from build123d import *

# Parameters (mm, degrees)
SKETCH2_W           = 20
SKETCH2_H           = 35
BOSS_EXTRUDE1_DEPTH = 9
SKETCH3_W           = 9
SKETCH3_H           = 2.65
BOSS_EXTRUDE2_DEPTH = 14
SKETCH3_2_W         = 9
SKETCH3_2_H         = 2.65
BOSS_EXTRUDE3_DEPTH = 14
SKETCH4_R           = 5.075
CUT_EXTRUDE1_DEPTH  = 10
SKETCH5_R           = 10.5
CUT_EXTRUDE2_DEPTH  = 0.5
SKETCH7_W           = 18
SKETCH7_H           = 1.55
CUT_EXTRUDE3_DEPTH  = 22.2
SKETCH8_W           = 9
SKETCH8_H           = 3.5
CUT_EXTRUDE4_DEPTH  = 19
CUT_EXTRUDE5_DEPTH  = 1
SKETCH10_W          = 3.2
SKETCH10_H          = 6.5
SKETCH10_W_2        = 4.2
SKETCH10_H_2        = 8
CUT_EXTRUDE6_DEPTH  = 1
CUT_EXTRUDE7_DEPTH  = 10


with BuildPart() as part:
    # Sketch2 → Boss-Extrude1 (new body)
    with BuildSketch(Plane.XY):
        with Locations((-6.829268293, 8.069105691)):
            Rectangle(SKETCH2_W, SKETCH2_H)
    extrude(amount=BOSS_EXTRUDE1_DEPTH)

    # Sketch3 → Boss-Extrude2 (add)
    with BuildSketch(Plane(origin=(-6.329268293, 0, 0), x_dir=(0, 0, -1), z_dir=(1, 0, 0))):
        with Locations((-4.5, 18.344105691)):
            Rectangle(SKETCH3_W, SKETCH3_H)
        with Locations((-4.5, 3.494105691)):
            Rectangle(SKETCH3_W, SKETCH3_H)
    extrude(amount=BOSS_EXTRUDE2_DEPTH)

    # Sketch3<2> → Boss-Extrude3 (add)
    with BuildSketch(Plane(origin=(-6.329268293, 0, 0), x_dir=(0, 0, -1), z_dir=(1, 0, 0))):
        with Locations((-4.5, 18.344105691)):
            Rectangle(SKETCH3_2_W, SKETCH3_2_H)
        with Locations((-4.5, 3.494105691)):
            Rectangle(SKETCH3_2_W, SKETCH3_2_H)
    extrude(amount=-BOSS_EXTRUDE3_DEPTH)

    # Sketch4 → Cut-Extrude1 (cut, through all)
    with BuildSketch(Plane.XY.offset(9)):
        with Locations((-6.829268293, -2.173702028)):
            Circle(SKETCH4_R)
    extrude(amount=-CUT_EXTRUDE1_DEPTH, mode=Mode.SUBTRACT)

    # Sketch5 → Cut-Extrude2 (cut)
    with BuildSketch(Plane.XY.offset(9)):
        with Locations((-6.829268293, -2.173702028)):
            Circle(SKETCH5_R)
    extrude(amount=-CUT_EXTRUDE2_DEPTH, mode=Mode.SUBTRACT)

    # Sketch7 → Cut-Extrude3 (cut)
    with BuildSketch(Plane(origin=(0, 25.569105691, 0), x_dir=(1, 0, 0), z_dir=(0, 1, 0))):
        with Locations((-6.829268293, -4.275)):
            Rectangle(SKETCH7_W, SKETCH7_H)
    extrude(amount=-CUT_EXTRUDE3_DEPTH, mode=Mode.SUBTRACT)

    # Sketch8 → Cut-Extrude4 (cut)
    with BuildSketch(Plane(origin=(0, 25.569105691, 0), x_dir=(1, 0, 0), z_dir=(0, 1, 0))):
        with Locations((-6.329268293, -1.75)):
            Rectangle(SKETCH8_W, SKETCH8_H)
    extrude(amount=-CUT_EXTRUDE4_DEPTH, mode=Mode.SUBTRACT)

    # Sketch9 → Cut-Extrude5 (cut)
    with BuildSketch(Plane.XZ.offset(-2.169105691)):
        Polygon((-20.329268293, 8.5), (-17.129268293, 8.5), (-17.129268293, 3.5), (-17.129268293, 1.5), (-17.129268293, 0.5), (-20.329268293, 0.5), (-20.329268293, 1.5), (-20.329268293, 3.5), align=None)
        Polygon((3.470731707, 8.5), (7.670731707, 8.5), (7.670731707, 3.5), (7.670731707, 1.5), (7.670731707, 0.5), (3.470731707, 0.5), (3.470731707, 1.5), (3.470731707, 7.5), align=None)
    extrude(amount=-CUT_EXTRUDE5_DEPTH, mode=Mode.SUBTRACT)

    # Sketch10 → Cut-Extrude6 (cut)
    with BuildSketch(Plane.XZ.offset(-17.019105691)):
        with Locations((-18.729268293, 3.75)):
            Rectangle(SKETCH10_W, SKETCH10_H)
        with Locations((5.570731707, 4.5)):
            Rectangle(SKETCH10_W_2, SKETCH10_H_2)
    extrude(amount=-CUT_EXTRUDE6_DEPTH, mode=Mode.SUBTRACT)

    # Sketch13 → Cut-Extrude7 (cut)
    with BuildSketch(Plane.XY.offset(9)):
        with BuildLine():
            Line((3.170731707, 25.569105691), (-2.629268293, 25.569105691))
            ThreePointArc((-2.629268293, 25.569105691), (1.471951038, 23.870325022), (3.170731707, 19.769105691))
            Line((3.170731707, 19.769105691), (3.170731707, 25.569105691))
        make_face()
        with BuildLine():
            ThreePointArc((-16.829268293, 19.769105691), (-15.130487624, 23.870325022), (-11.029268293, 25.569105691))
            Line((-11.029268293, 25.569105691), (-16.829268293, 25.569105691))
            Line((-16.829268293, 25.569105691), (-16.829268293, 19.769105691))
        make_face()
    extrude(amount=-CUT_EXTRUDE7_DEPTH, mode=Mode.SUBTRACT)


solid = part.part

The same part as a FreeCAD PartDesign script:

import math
import FreeCAD as App
import Part
import Sketcher

doc = App.newDocument("Part")
body = doc.addObject("PartDesign::Body", "Body")

# Sketch on XY plane
sketch1 = body.newObject("Sketcher::SketchObject", "Sketch")
sketch1.AttachmentSupport = (doc.getObject("XY_Plane"), [""])
sketch1.MapMode = "FlatFace"
sketch1.addGeometry(Part.LineSegment(App.Vector(-17, 26, 0), App.Vector(-17, -9, 0)), False)
sketch1.addGeometry(Part.LineSegment(App.Vector(-17, -9, 0), App.Vector(3, -9, 0)), False)
sketch1.addGeometry(Part.LineSegment(App.Vector(3, -9, 0), App.Vector(3, 26, 0)), False)
sketch1.addGeometry(Part.LineSegment(App.Vector(3, 26, 0), App.Vector(-17, 26, 0)), False)
sketch1.addConstraint(Sketcher.Constraint("Coincident", 0, 2, 1, 1))
sketch1.addConstraint(Sketcher.Constraint("Coincident", 1, 2, 2, 1))
sketch1.addConstraint(Sketcher.Constraint("Coincident", 2, 2, 3, 1))
sketch1.addConstraint(Sketcher.Constraint("Coincident", 3, 2, 0, 1))
sketch1.addConstraint(Sketcher.Constraint("Vertical", 0))
sketch1.addConstraint(Sketcher.Constraint("Horizontal", 1))
sketch1.addConstraint(Sketcher.Constraint("Vertical", 2))
sketch1.addConstraint(Sketcher.Constraint("Horizontal", 3))
sketch1.addConstraint(Sketcher.Constraint("DistanceX", 1, 1, 1, 2, 20.0))
sketch1.addConstraint(Sketcher.Constraint("DistanceY", 0, 2, 0, 1, 35.0))
sketch1.addConstraint(Sketcher.Constraint("DistanceX", 0, 2, -1, 1, 16.829268))
sketch1.addConstraint(Sketcher.Constraint("DistanceY", 0, 2, -1, 1, 9.430894))
pad1 = body.newObject("PartDesign::Pad", "Pad")
pad1.Profile = sketch1
pad1.Length = 9

# Sketch on YZ plane
sketch2 = body.newObject("Sketcher::SketchObject", "Sketch001")
sketch2.AttachmentSupport = (doc.getObject("YZ_Plane"), [""])
sketch2.MapMode = "FlatFace"
sketch2.AttachmentOffset = App.Placement(App.Vector(0, 0, -6.329268), App.Rotation())
sketch2.addGeometry(Part.LineSegment(App.Vector(19.7, 9, 0), App.Vector(17, 9, 0)), False)
sketch2.addGeometry(Part.LineSegment(App.Vector(17, 9, 0), App.Vector(17, 0, 0)), False)
sketch2.addGeometry(Part.LineSegment(App.Vector(17, 0, 0), App.Vector(19.7, 0, 0)), False)
sketch2.addGeometry(Part.LineSegment(App.Vector(19.7, 0, 0), App.Vector(19.7, 9, 0)), False)
sketch2.addGeometry(Part.LineSegment(App.Vector(4.8, 9, 0), App.Vector(2.2, 9, 0)), False)
sketch2.addGeometry(Part.LineSegment(App.Vector(2.2, 9, 0), App.Vector(2.2, 0, 0)), False)
sketch2.addGeometry(Part.LineSegment(App.Vector(2.2, 0, 0), App.Vector(4.8, 0, 0)), False)
sketch2.addGeometry(Part.LineSegment(App.Vector(4.8, 0, 0), App.Vector(4.8, 9, 0)), False)
sketch2.addConstraint(Sketcher.Constraint("Coincident", 0, 2, 1, 1))
sketch2.addConstraint(Sketcher.Constraint("Coincident", 1, 2, 2, 1))
sketch2.addConstraint(Sketcher.Constraint("Coincident", 2, 2, 3, 1))
sketch2.addConstraint(Sketcher.Constraint("Coincident", 3, 2, 0, 1))
sketch2.addConstraint(Sketcher.Constraint("Coincident", 4, 2, 5, 1))
sketch2.addConstraint(Sketcher.Constraint("Coincident", 5, 2, 6, 1))
sketch2.addConstraint(Sketcher.Constraint("Coincident", 6, 2, 7, 1))
sketch2.addConstraint(Sketcher.Constraint("Coincident", 7, 2, 4, 1))
sketch2.addConstraint(Sketcher.Constraint("Horizontal", 0))
sketch2.addConstraint(Sketcher.Constraint("Vertical", 1))
sketch2.addConstraint(Sketcher.Constraint("Horizontal", 2))
sketch2.addConstraint(Sketcher.Constraint("Vertical", 3))
sketch2.addConstraint(Sketcher.Constraint("Horizontal", 4))
sketch2.addConstraint(Sketcher.Constraint("Vertical", 5))
sketch2.addConstraint(Sketcher.Constraint("Horizontal", 6))
sketch2.addConstraint(Sketcher.Constraint("Vertical", 7))
sketch2.addConstraint(Sketcher.Constraint("PointOnObject", 1, 2, -1))
sketch2.addConstraint(Sketcher.Constraint("PointOnObject", 5, 2, -1))
sketch2.addConstraint(Sketcher.Constraint("Horizontal", 3, 2, 4, 2))
sketch2.addConstraint(Sketcher.Constraint("Equal", 2, 4))
sketch2.addConstraint(Sketcher.Constraint("DistanceY", 1, 2, 1, 1, 9.0))
sketch2.addConstraint(Sketcher.Constraint("DistanceX", 0, 2, 0, 1, 2.65))
sketch2.addConstraint(Sketcher.Constraint("DistanceX", 4, 2, 3, 2, 17.5))
sketch2.addConstraint(Sketcher.Constraint("DistanceX", -1, 1, 0, 2, 17.019106))
pad2 = body.newObject("PartDesign::Pad", "Pad001")
pad2.Profile = sketch2
pad2.Length = 14

# Sketch on YZ plane
sketch3 = body.newObject("Sketcher::SketchObject", "Sketch002")
sketch3.AttachmentSupport = (doc.getObject("YZ_Plane"), [""])
sketch3.MapMode = "FlatFace"
sketch3.AttachmentOffset = App.Placement(App.Vector(0, 0, -6.329268), App.Rotation())
sketch3.addGeometry(Part.LineSegment(App.Vector(19.7, 9, 0), App.Vector(17, 9, 0)), False)
sketch3.addGeometry(Part.LineSegment(App.Vector(17, 9, 0), App.Vector(17, 0, 0)), False)
sketch3.addGeometry(Part.LineSegment(App.Vector(17, 0, 0), App.Vector(19.7, 0, 0)), False)
sketch3.addGeometry(Part.LineSegment(App.Vector(19.7, 0, 0), App.Vector(19.7, 9, 0)), False)
sketch3.addGeometry(Part.LineSegment(App.Vector(4.8, 9, 0), App.Vector(2.2, 9, 0)), False)
sketch3.addGeometry(Part.LineSegment(App.Vector(2.2, 9, 0), App.Vector(2.2, 0, 0)), False)
sketch3.addGeometry(Part.LineSegment(App.Vector(2.2, 0, 0), App.Vector(4.8, 0, 0)), False)
sketch3.addGeometry(Part.LineSegment(App.Vector(4.8, 0, 0), App.Vector(4.8, 9, 0)), False)
sketch3.addConstraint(Sketcher.Constraint("Coincident", 0, 2, 1, 1))
sketch3.addConstraint(Sketcher.Constraint("Coincident", 1, 2, 2, 1))
sketch3.addConstraint(Sketcher.Constraint("Coincident", 2, 2, 3, 1))
sketch3.addConstraint(Sketcher.Constraint("Coincident", 3, 2, 0, 1))
sketch3.addConstraint(Sketcher.Constraint("Coincident", 4, 2, 5, 1))
sketch3.addConstraint(Sketcher.Constraint("Coincident", 5, 2, 6, 1))
sketch3.addConstraint(Sketcher.Constraint("Coincident", 6, 2, 7, 1))
sketch3.addConstraint(Sketcher.Constraint("Coincident", 7, 2, 4, 1))
sketch3.addConstraint(Sketcher.Constraint("Horizontal", 0))
sketch3.addConstraint(Sketcher.Constraint("Vertical", 1))
sketch3.addConstraint(Sketcher.Constraint("Horizontal", 2))
sketch3.addConstraint(Sketcher.Constraint("Vertical", 3))
sketch3.addConstraint(Sketcher.Constraint("Horizontal", 4))
sketch3.addConstraint(Sketcher.Constraint("Vertical", 5))
sketch3.addConstraint(Sketcher.Constraint("Horizontal", 6))
sketch3.addConstraint(Sketcher.Constraint("Vertical", 7))
sketch3.addConstraint(Sketcher.Constraint("PointOnObject", 1, 2, -1))
sketch3.addConstraint(Sketcher.Constraint("PointOnObject", 5, 2, -1))
sketch3.addConstraint(Sketcher.Constraint("Horizontal", 3, 2, 4, 2))
sketch3.addConstraint(Sketcher.Constraint("Equal", 2, 4))
sketch3.addConstraint(Sketcher.Constraint("DistanceY", 1, 2, 1, 1, 9.0))
sketch3.addConstraint(Sketcher.Constraint("DistanceX", 0, 2, 0, 1, 2.65))
sketch3.addConstraint(Sketcher.Constraint("DistanceX", 4, 2, 3, 2, 17.5))
sketch3.addConstraint(Sketcher.Constraint("DistanceX", -1, 1, 0, 2, 17.019106))
pad3 = body.newObject("PartDesign::Pad", "Pad002")
pad3.Profile = sketch3
pad3.Length = 14
pad3.Reversed = True

# Sketch on XY plane
sketch4 = body.newObject("Sketcher::SketchObject", "Sketch003")
sketch4.AttachmentSupport = (doc.getObject("XY_Plane"), [""])
sketch4.MapMode = "FlatFace"
sketch4.AttachmentOffset = App.Placement(App.Vector(0, 0, 9), App.Rotation())
sketch4.addGeometry(Part.Circle(App.Vector(-7, -2, 0), App.Vector(0, 0, 1), 5), False)
sketch4.addConstraint(Sketcher.Constraint("Diameter", 0, 10.15))
sketch4.addConstraint(Sketcher.Constraint("DistanceX", 0, 3, -1, 1, 6.829268))
sketch4.addConstraint(Sketcher.Constraint("DistanceY", 0, 3, -1, 1, 2.173702))
pocket1 = body.newObject("PartDesign::Pocket", "Pocket")
pocket1.Profile = sketch4
pocket1.Type = "ThroughAll"

# Sketch on XY plane
sketch5 = body.newObject("Sketcher::SketchObject", "Sketch004")
sketch5.AttachmentSupport = (doc.getObject("XY_Plane"), [""])
sketch5.MapMode = "FlatFace"
sketch5.AttachmentOffset = App.Placement(App.Vector(0, 0, 9), App.Rotation())
sketch5.addGeometry(Part.Circle(App.Vector(-7, -2, 0), App.Vector(0, 0, 1), 10), False)
sketch5.addConstraint(Sketcher.Constraint("Diameter", 0, 21.0))
sketch5.addConstraint(Sketcher.Constraint("DistanceX", 0, 3, -1, 1, 6.829268))
sketch5.addConstraint(Sketcher.Constraint("DistanceY", 0, 3, -1, 1, 2.173702))
pocket2 = body.newObject("PartDesign::Pocket", "Pocket001")
pocket2.Profile = sketch5
pocket2.Length = 0.5

# Sketch on XZ plane
sketch6 = body.newObject("Sketcher::SketchObject", "Sketch005")
sketch6.AttachmentSupport = (doc.getObject("XZ_Plane"), [""])
sketch6.MapMode = "FlatFace"
sketch6.AttachmentOffset = App.Placement(App.Vector(0, 0, -25.569106), App.Rotation())
sketch6.addGeometry(Part.LineSegment(App.Vector(-15.8, 3.5, 0), App.Vector(-15.8, 5, 0)), False)
sketch6.addGeometry(Part.LineSegment(App.Vector(-15.8, 5, 0), App.Vector(2.2, 5, 0)), False)
sketch6.addGeometry(Part.LineSegment(App.Vector(2.2, 5, 0), App.Vector(2.2, 3.5, 0)), False)
sketch6.addGeometry(Part.LineSegment(App.Vector(2.2, 3.5, 0), App.Vector(-15.8, 3.5, 0)), False)
sketch6.addConstraint(Sketcher.Constraint("Coincident", 0, 2, 1, 1))
sketch6.addConstraint(Sketcher.Constraint("Coincident", 1, 2, 2, 1))
sketch6.addConstraint(Sketcher.Constraint("Coincident", 2, 2, 3, 1))
sketch6.addConstraint(Sketcher.Constraint("Coincident", 3, 2, 0, 1))
sketch6.addConstraint(Sketcher.Constraint("Vertical", 0))
sketch6.addConstraint(Sketcher.Constraint("Horizontal", 1))
sketch6.addConstraint(Sketcher.Constraint("Vertical", 2))
sketch6.addConstraint(Sketcher.Constraint("Horizontal", 3))
sketch6.addConstraint(Sketcher.Constraint("DistanceX", 1, 1, 1, 2, 18.0))
sketch6.addConstraint(Sketcher.Constraint("DistanceY", 0, 1, 0, 2, 1.55))
sketch6.addConstraint(Sketcher.Constraint("DistanceY", -1, 1, 2, 2, 3.5))
sketch6.addConstraint(Sketcher.Constraint("DistanceX", 0, 2, -1, 1, 15.829268))
pocket3 = body.newObject("PartDesign::Pocket", "Pocket002")
pocket3.Profile = sketch6
pocket3.Length = 22.2
pocket3.Reversed = True

# Sketch on XZ plane
sketch7 = body.newObject("Sketcher::SketchObject", "Sketch006")
sketch7.AttachmentSupport = (doc.getObject("XZ_Plane"), [""])
sketch7.MapMode = "FlatFace"
sketch7.AttachmentOffset = App.Placement(App.Vector(0, 0, -25.569106), App.Rotation())
sketch7.addGeometry(Part.LineSegment(App.Vector(-10.8, 0, 0), App.Vector(-10.8, 3.5, 0)), False)
sketch7.addGeometry(Part.LineSegment(App.Vector(-10.8, 3.5, 0), App.Vector(-1.8, 3.5, 0)), False)
sketch7.addGeometry(Part.LineSegment(App.Vector(-1.8, 3.5, 0), App.Vector(-1.8, 0, 0)), False)
sketch7.addGeometry(Part.LineSegment(App.Vector(-1.8, 0, 0), App.Vector(-10.8, 0, 0)), False)
sketch7.addConstraint(Sketcher.Constraint("Coincident", 0, 2, 1, 1))
sketch7.addConstraint(Sketcher.Constraint("Coincident", 1, 2, 2, 1))
sketch7.addConstraint(Sketcher.Constraint("Coincident", 2, 2, 3, 1))
sketch7.addConstraint(Sketcher.Constraint("Coincident", 3, 2, 0, 1))
sketch7.addConstraint(Sketcher.Constraint("Vertical", 0))
sketch7.addConstraint(Sketcher.Constraint("Horizontal", 1))
sketch7.addConstraint(Sketcher.Constraint("Vertical", 2))
sketch7.addConstraint(Sketcher.Constraint("Horizontal", 3))
sketch7.addConstraint(Sketcher.Constraint("PointOnObject", 2, 2, -1))
sketch7.addConstraint(Sketcher.Constraint("DistanceX", 1, 1, 1, 2, 9.0))
sketch7.addConstraint(Sketcher.Constraint("DistanceY", 0, 1, 0, 2, 3.5))
sketch7.addConstraint(Sketcher.Constraint("DistanceX", 0, 2, -1, 1, 10.829268))
pocket4 = body.newObject("PartDesign::Pocket", "Pocket003")
pocket4.Profile = sketch7
pocket4.Length = 19
pocket4.Reversed = True

# Sketch on XZ plane
sketch8 = body.newObject("Sketcher::SketchObject", "Sketch007")
sketch8.AttachmentSupport = (doc.getObject("XZ_Plane"), [""])
sketch8.MapMode = "FlatFace"
sketch8.AttachmentOffset = App.Placement(App.Vector(0, 0, -2.169106), App.Rotation())
sketch8.addGeometry(Part.LineSegment(App.Vector(-17.1, 8.5, 0), App.Vector(-20.3, 8.5, 0)), False)
sketch8.addGeometry(Part.LineSegment(App.Vector(-20.3, 8.5, 0), App.Vector(-20.3, 0.5, 0)), False)
sketch8.addGeometry(Part.LineSegment(App.Vector(-20.3, 0.5, 0), App.Vector(-17.1, 0.5, 0)), False)
sketch8.addGeometry(Part.LineSegment(App.Vector(-17.1, 0.5, 0), App.Vector(-17.1, 8.5, 0)), False)
sketch8.addGeometry(Part.LineSegment(App.Vector(7.7, 8.5, 0), App.Vector(3.5, 8.5, 0)), False)
sketch8.addGeometry(Part.LineSegment(App.Vector(3.5, 8.5, 0), App.Vector(3.5, 0.5, 0)), False)
sketch8.addGeometry(Part.LineSegment(App.Vector(3.5, 0.5, 0), App.Vector(7.7, 0.5, 0)), False)
sketch8.addGeometry(Part.LineSegment(App.Vector(7.7, 0.5, 0), App.Vector(7.7, 8.5, 0)), False)
sketch8.addConstraint(Sketcher.Constraint("Coincident", 0, 2, 1, 1))
sketch8.addConstraint(Sketcher.Constraint("Coincident", 1, 2, 2, 1))
sketch8.addConstraint(Sketcher.Constraint("Coincident", 2, 2, 3, 1))
sketch8.addConstraint(Sketcher.Constraint("Coincident", 3, 2, 0, 1))
sketch8.addConstraint(Sketcher.Constraint("Coincident", 4, 2, 5, 1))
sketch8.addConstraint(Sketcher.Constraint("Coincident", 5, 2, 6, 1))
sketch8.addConstraint(Sketcher.Constraint("Coincident", 6, 2, 7, 1))
sketch8.addConstraint(Sketcher.Constraint("Coincident", 7, 2, 4, 1))
sketch8.addConstraint(Sketcher.Constraint("Horizontal", 0))
sketch8.addConstraint(Sketcher.Constraint("Vertical", 1))
sketch8.addConstraint(Sketcher.Constraint("Horizontal", 2))
sketch8.addConstraint(Sketcher.Constraint("Vertical", 3))
sketch8.addConstraint(Sketcher.Constraint("Horizontal", 4))
sketch8.addConstraint(Sketcher.Constraint("Vertical", 5))
sketch8.addConstraint(Sketcher.Constraint("Horizontal", 6))
sketch8.addConstraint(Sketcher.Constraint("Vertical", 7))
sketch8.addConstraint(Sketcher.Constraint("Horizontal", 3, 2, 4, 2))
sketch8.addConstraint(Sketcher.Constraint("Horizontal", 2, 2, 5, 2))
sketch8.addConstraint(Sketcher.Constraint("DistanceY", 1, 2, 1, 1, 8.0))
sketch8.addConstraint(Sketcher.Constraint("DistanceX", 0, 2, 0, 1, 3.2))
sketch8.addConstraint(Sketcher.Constraint("DistanceX", 4, 2, 4, 1, 4.2))
sketch8.addConstraint(Sketcher.Constraint("DistanceX", 1, 2, 6, 2, 28.0))
sketch8.addConstraint(Sketcher.Constraint("DistanceY", -1, 1, 0, 2, 8.5))
sketch8.addConstraint(Sketcher.Constraint("DistanceX", 0, 2, -1, 1, 20.329268))
pocket5 = body.newObject("PartDesign::Pocket", "Pocket004")
pocket5.Profile = sketch8
pocket5.Length = 1

# Sketch on XZ plane
sketch9 = body.newObject("Sketcher::SketchObject", "Sketch008")
sketch9.AttachmentSupport = (doc.getObject("XZ_Plane"), [""])
sketch9.MapMode = "FlatFace"
sketch9.AttachmentOffset = App.Placement(App.Vector(0, 0, -17.019106), App.Rotation())
sketch9.addGeometry(Part.LineSegment(App.Vector(-20.3, 7, 0), App.Vector(-20.3, 0.5, 0)), False)
sketch9.addGeometry(Part.LineSegment(App.Vector(-20.3, 0.5, 0), App.Vector(-17.1, 0.5, 0)), False)
sketch9.addGeometry(Part.LineSegment(App.Vector(-17.1, 0.5, 0), App.Vector(-17.1, 7, 0)), False)
sketch9.addGeometry(Part.LineSegment(App.Vector(-17.1, 7, 0), App.Vector(-20.3, 7, 0)), False)
sketch9.addGeometry(Part.LineSegment(App.Vector(3.5, 8.5, 0), App.Vector(3.5, 0.5, 0)), False)
sketch9.addGeometry(Part.LineSegment(App.Vector(3.5, 0.5, 0), App.Vector(7.7, 0.5, 0)), False)
sketch9.addGeometry(Part.LineSegment(App.Vector(7.7, 0.5, 0), App.Vector(7.7, 8.5, 0)), False)
sketch9.addGeometry(Part.LineSegment(App.Vector(7.7, 8.5, 0), App.Vector(3.5, 8.5, 0)), False)
sketch9.addConstraint(Sketcher.Constraint("Coincident", 0, 2, 1, 1))
sketch9.addConstraint(Sketcher.Constraint("Coincident", 1, 2, 2, 1))
sketch9.addConstraint(Sketcher.Constraint("Coincident", 2, 2, 3, 1))
sketch9.addConstraint(Sketcher.Constraint("Coincident", 3, 2, 0, 1))
sketch9.addConstraint(Sketcher.Constraint("Coincident", 4, 2, 5, 1))
sketch9.addConstraint(Sketcher.Constraint("Coincident", 5, 2, 6, 1))
sketch9.addConstraint(Sketcher.Constraint("Coincident", 6, 2, 7, 1))
sketch9.addConstraint(Sketcher.Constraint("Coincident", 7, 2, 4, 1))
sketch9.addConstraint(Sketcher.Constraint("Vertical", 0))
sketch9.addConstraint(Sketcher.Constraint("Horizontal", 1))
sketch9.addConstraint(Sketcher.Constraint("Vertical", 2))
sketch9.addConstraint(Sketcher.Constraint("Horizontal", 3))
sketch9.addConstraint(Sketcher.Constraint("Vertical", 4))
sketch9.addConstraint(Sketcher.Constraint("Horizontal", 5))
sketch9.addConstraint(Sketcher.Constraint("Vertical", 6))
sketch9.addConstraint(Sketcher.Constraint("Horizontal", 7))
sketch9.addConstraint(Sketcher.Constraint("Horizontal", 1, 2, 4, 2))
sketch9.addConstraint(Sketcher.Constraint("DistanceY", 4, 2, 4, 1, 8.0))
sketch9.addConstraint(Sketcher.Constraint("DistanceX", 1, 1, 1, 2, 3.2))
sketch9.addConstraint(Sketcher.Constraint("DistanceX", 5, 1, 5, 2, 4.2))
sketch9.addConstraint(Sketcher.Constraint("DistanceY", 0, 2, 0, 1, 6.5))
sketch9.addConstraint(Sketcher.Constraint("DistanceY", -1, 1, 2, 2, 7.0))
sketch9.addConstraint(Sketcher.Constraint("DistanceX", 0, 2, 5, 2, 28.0))
sketch9.addConstraint(Sketcher.Constraint("DistanceX", 0, 2, -1, 1, 20.329268))
pocket6 = body.newObject("PartDesign::Pocket", "Pocket005")
pocket6.Profile = sketch9
pocket6.Length = 1

# Sketch on XY plane
sketch10 = body.newObject("Sketcher::SketchObject", "Sketch009")
sketch10.AttachmentSupport = (doc.getObject("XY_Plane"), [""])
sketch10.MapMode = "FlatFace"
sketch10.AttachmentOffset = App.Placement(App.Vector(0, 0, 9), App.Rotation())
sketch10.addGeometry(Part.LineSegment(App.Vector(3, 26, 0), App.Vector(-3, 26, 0)), False)
sketch10.addGeometry(Part.ArcOfCircle(Part.Circle(App.Vector(-3, 20, 0), App.Vector(0, 0, 1), 6), math.radians(0), math.radians(90)), False)
sketch10.addGeometry(Part.LineSegment(App.Vector(3, 20, 0), App.Vector(3, 26, 0)), False)
sketch10.addGeometry(Part.ArcOfCircle(Part.Circle(App.Vector(-11, 20, 0), App.Vector(0, 0, 1), 6), math.radians(90), math.radians(180)), False)
sketch10.addGeometry(Part.LineSegment(App.Vector(-11, 26, 0), App.Vector(-17, 26, 0)), False)
sketch10.addGeometry(Part.LineSegment(App.Vector(-17, 26, 0), App.Vector(-17, 20, 0)), False)
sketch10.addConstraint(Sketcher.Constraint("Tangent", 0, 2, 1, 2))
sketch10.addConstraint(Sketcher.Constraint("Tangent", 1, 1, 2, 1))
sketch10.addConstraint(Sketcher.Constraint("Coincident", 2, 2, 0, 1))
sketch10.addConstraint(Sketcher.Constraint("Tangent", 3, 1, 4, 1))
sketch10.addConstraint(Sketcher.Constraint("Coincident", 4, 2, 5, 1))
sketch10.addConstraint(Sketcher.Constraint("Tangent", 5, 2, 3, 2))
sketch10.addConstraint(Sketcher.Constraint("Horizontal", 0))
sketch10.addConstraint(Sketcher.Constraint("Vertical", 2))
sketch10.addConstraint(Sketcher.Constraint("Horizontal", 4))
sketch10.addConstraint(Sketcher.Constraint("Vertical", 5))
sketch10.addConstraint(Sketcher.Constraint("Equal", 1, 3))
sketch10.addConstraint(Sketcher.Constraint("Horizontal", 1, 3, 3, 3))
sketch10.addConstraint(Sketcher.Constraint("Radius", 1, 5.8))
sketch10.addConstraint(Sketcher.Constraint("DistanceX", 4, 2, 2, 2, 20.0))
sketch10.addConstraint(Sketcher.Constraint("DistanceX", 1, 3, -1, 1, 2.629268))
sketch10.addConstraint(Sketcher.Constraint("DistanceY", -1, 1, 1, 3, 19.769106))
pocket7 = body.newObject("PartDesign::Pocket", "Pocket006")
pocket7.Profile = sketch10
pocket7.Length = 10

doc.recompute()
